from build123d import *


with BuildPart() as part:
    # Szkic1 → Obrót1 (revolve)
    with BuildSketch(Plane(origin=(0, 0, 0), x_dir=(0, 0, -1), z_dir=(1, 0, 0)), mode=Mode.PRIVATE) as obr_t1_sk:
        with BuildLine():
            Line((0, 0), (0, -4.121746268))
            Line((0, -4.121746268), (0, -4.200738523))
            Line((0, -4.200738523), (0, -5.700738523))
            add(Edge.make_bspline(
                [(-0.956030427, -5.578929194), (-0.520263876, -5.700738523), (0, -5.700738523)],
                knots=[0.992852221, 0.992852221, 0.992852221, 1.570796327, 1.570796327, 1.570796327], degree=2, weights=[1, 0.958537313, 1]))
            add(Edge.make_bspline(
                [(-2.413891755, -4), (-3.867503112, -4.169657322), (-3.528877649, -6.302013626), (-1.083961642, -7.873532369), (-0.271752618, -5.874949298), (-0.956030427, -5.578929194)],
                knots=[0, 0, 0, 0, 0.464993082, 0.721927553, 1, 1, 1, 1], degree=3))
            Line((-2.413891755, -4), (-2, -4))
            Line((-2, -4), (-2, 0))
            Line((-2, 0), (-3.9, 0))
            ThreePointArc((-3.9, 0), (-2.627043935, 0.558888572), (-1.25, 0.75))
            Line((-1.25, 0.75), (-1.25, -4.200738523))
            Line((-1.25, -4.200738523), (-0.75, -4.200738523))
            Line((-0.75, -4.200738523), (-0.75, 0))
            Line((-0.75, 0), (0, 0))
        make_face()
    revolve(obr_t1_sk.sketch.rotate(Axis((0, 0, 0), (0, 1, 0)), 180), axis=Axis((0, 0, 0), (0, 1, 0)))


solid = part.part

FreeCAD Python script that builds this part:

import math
import FreeCAD as App
import Part
import Sketcher

V = App.Vector
Q = App.Units.Quantity

doc = App.newDocument("Part")
params = doc.addObject("Spreadsheet::Sheet", "Params")
for row, (alias, value) in enumerate([
    ("sketch1_height", "0.5 mm"),
    ("sketch1_height2", "1.9 mm"),
    ("sketch1_height3", "0.75 mm"),
    ("revolution_angle", "360 deg"),
], start=1):
    params.set(f"A{row}", alias)
    params.set(f"B{row}", "=" + value)
    params.setAlias(f"B{row}", alias)

body = doc.addObject("PartDesign::Body", "Body")

# Sketch on YZ plane
sketch1 = body.newObject("Sketcher::SketchObject", "Sketch")
sketch1.AttachmentSupport = (doc.getObject("YZ_Plane"), [""])
sketch1.MapMode = "FlatFace"
sketch1.addGeometry([
    Part.LineSegment(V(-5.700739, 0, 0), V(0, 0, 0)),  # 0
    Part.LineSegment(V(0, 0, 0), V(0, 0.75, 0)),  # 1
    Part.LineSegment(V(0, 0.75, 0), V(-4.200739, 0.75, 0)),  # 2
    Part.LineSegment(V(-4.200739, 0.75, 0), V(-4.200739, 1.25, 0)),  # 3
    Part.LineSegment(V(-4.200739, 1.25, 0), V(0.75, 1.25, 0)),  # 4
    Part.ArcOfCircle(Part.Circle(V(-4.306667, 1.25, 0), V(0, 0, 1), 5.056667), math.radians(0), math.radians(31.605028)),  # 5
    Part.LineSegment(V(0, 3.9, 0), V(0, 2, 0)),  # 6
    Part.LineSegment(V(0, 2, 0), V(-4, 2, 0)),  # 7
    Part.LineSegment(V(-4, 2, 0), V(-4, 2.413892, 0)),  # 8
    Part.BSplineCurve([V(-4, 2.413892, 0), V(-4.169657, 3.867503, 0), V(-6.302014, 3.528878, 0), V(-7.873532, 1.083962, 0), V(-5.874949, 0.271753, 0), V(-5.578929, 0.95603, 0)], [4, 1, 1, 4], [0, 0.464993082, 0.721927553, 1], False, 3, [1, 1, 1, 1, 1, 1], False),  # 9
    Part.BSplineCurve([V(-5.578929, 0.95603, 0), V(-5.700739, 0.520264, 0), V(-5.700739, 0, 0)], [3, 3], [0.992852221, 1.570796327], False, 2, [1, 0.958537313, 1], False),  # 10
], False)
sketch1.addConstraint([
    Sketcher.Constraint("Block", 9),
    Sketcher.Constraint("Block", 10),
    Sketcher.Constraint("Coincident", 0, 2, 1, 1),
    Sketcher.Constraint("Coincident", 1, 2, 2, 1),
    Sketcher.Constraint("Coincident", 2, 2, 3, 1),
    Sketcher.Constraint("Coincident", 3, 2, 4, 1),
    Sketcher.Constraint("Coincident", 4, 2, 5, 1),
    Sketcher.Constraint("Coincident", 5, 2, 6, 1),
    Sketcher.Constraint("Coincident", 6, 2, 7, 1),
    Sketcher.Constraint("Coincident", 7, 2, 8, 1),
    Sketcher.Constraint("Coincident", 8, 2, 9, 1),
    Sketcher.Constraint("Coincident", 10, 2, 0, 1),
    Sketcher.Constraint("Horizontal", 0),
    Sketcher.Constraint("Vertical", 1),
    Sketcher.Constraint("Horizontal", 2),
    Sketcher.Constraint("Vertical", 3),
    Sketcher.Constraint("Horizontal", 4),
    Sketcher.Constraint("Vertical", 6),
    Sketcher.Constraint("Horizontal", 7),
    Sketcher.Constraint("Vertical", 8),
    Sketcher.Constraint("PointOnObject", 1, 2, -2),
    Sketcher.Constraint("PointOnObject", 5, 2, -2),
    Sketcher.Constraint("Horizontal", 5, 3, 3, 2),
    Sketcher.Constraint("DistanceY", 3, 1, 3, 2, Q("0.5 mm")),
    Sketcher.Constraint("DistanceY", 6, 2, 6, 1, Q("1.9 mm")),
    Sketcher.Constraint("DistanceY", -1, 1, 6, 2, Q("2 mm")),
    Sketcher.Constraint("DistanceY", 1, 1, 1, 2, Q("0.75 mm")),
    Sketcher.Constraint("DistanceX", -1, 1, 4, 2, Q("0.75 mm")),
    Sketcher.Constraint("DistanceX", 2, 2, 2, 1, Q("4.200739 mm")),
])
sketch1.setExpression("Constraints[23]", "Params.sketch1_height")
sketch1.setExpression("Constraints[24]", "Params.sketch1_height2")
sketch1.setExpression("Constraints[26]", "Params.sketch1_height3")
revolution = body.newObject("PartDesign::Revolution", "Revolution")
revolution.Profile = sketch1
revolution.ReferenceAxis = (sketch1, ["H_Axis"])
revolution.setExpression("Angle", "Params.revolution_angle")

doc.recompute()
